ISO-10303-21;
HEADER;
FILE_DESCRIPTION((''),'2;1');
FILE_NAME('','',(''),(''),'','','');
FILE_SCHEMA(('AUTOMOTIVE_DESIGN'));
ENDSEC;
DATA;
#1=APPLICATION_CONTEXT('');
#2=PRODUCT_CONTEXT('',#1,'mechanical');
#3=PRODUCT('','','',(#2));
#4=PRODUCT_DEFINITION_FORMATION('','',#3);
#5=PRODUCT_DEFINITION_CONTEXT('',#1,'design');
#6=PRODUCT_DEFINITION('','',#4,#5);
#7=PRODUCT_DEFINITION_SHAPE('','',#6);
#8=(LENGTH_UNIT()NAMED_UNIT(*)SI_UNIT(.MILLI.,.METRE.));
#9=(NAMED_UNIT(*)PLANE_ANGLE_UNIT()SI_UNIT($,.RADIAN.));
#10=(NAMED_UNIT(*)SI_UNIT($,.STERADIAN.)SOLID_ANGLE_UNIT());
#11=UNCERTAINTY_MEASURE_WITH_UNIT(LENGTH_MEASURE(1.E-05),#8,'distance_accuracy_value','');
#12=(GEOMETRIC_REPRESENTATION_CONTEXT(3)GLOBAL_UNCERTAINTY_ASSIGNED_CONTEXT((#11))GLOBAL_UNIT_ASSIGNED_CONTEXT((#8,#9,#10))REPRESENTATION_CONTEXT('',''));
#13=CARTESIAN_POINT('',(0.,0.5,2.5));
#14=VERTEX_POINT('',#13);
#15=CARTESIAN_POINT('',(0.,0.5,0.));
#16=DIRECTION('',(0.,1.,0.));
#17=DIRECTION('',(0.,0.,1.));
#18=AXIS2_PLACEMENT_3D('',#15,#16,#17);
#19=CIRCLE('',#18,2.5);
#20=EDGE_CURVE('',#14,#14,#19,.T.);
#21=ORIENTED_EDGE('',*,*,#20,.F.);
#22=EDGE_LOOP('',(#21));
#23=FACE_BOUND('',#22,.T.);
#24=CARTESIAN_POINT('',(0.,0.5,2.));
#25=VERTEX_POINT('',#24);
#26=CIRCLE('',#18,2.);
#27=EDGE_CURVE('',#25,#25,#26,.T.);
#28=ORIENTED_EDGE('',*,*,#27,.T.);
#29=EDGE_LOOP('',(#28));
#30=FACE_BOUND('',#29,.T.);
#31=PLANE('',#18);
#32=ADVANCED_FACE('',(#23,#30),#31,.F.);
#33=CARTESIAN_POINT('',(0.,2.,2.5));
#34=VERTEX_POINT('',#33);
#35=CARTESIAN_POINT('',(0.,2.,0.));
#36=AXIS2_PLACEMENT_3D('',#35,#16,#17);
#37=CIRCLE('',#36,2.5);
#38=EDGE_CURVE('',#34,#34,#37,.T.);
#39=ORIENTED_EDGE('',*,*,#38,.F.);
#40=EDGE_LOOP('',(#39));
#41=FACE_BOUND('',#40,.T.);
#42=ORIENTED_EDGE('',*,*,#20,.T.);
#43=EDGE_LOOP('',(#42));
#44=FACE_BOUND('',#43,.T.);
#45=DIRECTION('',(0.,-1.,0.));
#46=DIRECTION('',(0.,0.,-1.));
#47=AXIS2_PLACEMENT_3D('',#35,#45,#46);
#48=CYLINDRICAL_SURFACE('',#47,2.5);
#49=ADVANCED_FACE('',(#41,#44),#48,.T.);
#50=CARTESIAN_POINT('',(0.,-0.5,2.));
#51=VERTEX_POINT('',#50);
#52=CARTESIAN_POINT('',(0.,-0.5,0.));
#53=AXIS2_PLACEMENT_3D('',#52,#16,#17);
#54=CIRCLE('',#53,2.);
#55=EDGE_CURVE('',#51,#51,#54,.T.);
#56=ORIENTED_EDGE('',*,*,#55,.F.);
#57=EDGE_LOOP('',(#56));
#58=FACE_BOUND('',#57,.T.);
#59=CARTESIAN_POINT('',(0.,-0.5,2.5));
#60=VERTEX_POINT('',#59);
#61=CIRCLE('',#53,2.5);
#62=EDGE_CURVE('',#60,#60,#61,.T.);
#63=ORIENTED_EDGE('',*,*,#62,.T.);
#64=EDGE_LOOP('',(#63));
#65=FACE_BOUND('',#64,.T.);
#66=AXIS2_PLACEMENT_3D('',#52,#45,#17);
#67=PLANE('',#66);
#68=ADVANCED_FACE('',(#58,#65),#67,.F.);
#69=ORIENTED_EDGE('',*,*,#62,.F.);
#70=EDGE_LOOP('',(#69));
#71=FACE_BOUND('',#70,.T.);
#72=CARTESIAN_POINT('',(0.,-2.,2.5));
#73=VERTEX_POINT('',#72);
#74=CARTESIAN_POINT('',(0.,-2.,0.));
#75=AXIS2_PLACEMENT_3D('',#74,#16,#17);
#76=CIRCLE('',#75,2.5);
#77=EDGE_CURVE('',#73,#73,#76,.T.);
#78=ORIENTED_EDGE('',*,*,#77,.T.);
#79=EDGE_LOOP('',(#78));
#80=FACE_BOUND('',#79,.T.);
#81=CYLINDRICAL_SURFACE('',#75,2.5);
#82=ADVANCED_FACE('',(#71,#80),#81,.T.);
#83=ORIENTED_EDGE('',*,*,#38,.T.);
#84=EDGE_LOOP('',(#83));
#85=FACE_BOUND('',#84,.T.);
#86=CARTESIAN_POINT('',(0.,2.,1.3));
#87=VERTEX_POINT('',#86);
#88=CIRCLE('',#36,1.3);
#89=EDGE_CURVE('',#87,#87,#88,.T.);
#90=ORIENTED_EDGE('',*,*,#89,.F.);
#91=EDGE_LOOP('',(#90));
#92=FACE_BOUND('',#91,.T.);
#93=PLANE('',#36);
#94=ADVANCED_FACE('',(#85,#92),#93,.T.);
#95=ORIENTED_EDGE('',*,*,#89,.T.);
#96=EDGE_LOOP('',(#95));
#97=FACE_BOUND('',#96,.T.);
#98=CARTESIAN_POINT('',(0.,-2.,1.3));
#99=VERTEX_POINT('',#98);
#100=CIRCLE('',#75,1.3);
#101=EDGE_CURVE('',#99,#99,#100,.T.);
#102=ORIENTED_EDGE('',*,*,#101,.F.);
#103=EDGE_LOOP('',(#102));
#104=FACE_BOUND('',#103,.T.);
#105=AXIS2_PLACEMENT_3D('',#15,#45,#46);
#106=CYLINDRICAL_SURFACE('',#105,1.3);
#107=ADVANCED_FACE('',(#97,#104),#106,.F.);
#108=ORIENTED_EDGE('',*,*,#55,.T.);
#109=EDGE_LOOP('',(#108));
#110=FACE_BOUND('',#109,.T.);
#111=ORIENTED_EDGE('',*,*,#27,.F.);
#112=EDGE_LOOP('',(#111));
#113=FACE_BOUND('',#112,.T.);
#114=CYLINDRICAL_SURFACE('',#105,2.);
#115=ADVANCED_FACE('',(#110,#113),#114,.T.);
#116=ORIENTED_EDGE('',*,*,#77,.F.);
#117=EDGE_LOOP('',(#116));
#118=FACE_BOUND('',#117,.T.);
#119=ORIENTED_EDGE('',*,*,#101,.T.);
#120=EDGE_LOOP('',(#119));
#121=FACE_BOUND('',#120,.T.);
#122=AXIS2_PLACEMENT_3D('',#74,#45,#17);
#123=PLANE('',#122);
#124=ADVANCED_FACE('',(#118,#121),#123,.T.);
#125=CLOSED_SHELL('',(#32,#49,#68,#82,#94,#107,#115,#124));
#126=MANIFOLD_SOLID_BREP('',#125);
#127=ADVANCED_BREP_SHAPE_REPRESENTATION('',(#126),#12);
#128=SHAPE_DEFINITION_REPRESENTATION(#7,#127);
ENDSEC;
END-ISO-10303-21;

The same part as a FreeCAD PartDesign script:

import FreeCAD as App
import Part
import Sketcher
from FreeCAD import Vector

doc = App.newDocument("Part")
body = doc.addObject("PartDesign::Body", "Body")

# Sketch on XZ plane
sketch1 = body.newObject("Sketcher::SketchObject", "Sketch")
sketch1.AttachmentSupport = (doc.getObject("XZ_Plane"), [""])
sketch1.MapMode = "FlatFace"
sketch1.addGeometry([
    Part.Circle(Vector(0, 0, 0), Vector(0, 0, 1), 2),
    Part.Circle(Vector(0, 0, 0), Vector(0, 0, 1), 1.3),
], False)
sketch1.addConstraint([
    Sketcher.Constraint("Coincident", 0, 3, -1, 1),
    Sketcher.Constraint("Coincident", 1, 3, -1, 1),
    Sketcher.Constraint("Diameter", 0, 4.0),
    Sketcher.Constraint("Diameter", 1, 2.6),
])
pad1 = body.newObject("PartDesign::Pad", "Pad")
pad1.Profile = sketch1
pad1.Length = 1
pad1.Midplane = True

# Sketch on XZ plane
sketch2 = body.newObject("Sketcher::SketchObject", "Sketch001")
sketch2.AttachmentSupport = (doc.getObject("XZ_Plane"), [""])
sketch2.MapMode = "FlatFace"
sketch2.AttachmentOffset = App.Placement(Vector(0, 0, -0.5), App.Rotation())
sketch2.addGeometry([
    Part.Circle(Vector(0, 0, 0), Vector(0, 0, 1), 2.5),
    Part.Circle(Vector(0, 0, 0), Vector(0, 0, 1), 1.3),
], False)
sketch2.addConstraint([
    Sketcher.Constraint("Coincident", 0, 3, -1, 1),
    Sketcher.Constraint("Coincident", 1, 3, -1, 1),
    Sketcher.Constraint("Diameter", 0, 5.0),
    Sketcher.Constraint("Diameter", 1, 2.6),
])
pad2 = body.newObject("PartDesign::Pad", "Pad001")
pad2.Profile = sketch2
pad2.Length = 1.5
pad2.Reversed = True
doc.recompute()

mirrored = body.newObject("PartDesign::Mirrored", "Mirrored")
mirrored.Originals = [pad2]
mirrored.MirrorPlane = (doc.getObject("XZ_Plane"), [""])
body.Tip = mirrored

doc.recompute()
